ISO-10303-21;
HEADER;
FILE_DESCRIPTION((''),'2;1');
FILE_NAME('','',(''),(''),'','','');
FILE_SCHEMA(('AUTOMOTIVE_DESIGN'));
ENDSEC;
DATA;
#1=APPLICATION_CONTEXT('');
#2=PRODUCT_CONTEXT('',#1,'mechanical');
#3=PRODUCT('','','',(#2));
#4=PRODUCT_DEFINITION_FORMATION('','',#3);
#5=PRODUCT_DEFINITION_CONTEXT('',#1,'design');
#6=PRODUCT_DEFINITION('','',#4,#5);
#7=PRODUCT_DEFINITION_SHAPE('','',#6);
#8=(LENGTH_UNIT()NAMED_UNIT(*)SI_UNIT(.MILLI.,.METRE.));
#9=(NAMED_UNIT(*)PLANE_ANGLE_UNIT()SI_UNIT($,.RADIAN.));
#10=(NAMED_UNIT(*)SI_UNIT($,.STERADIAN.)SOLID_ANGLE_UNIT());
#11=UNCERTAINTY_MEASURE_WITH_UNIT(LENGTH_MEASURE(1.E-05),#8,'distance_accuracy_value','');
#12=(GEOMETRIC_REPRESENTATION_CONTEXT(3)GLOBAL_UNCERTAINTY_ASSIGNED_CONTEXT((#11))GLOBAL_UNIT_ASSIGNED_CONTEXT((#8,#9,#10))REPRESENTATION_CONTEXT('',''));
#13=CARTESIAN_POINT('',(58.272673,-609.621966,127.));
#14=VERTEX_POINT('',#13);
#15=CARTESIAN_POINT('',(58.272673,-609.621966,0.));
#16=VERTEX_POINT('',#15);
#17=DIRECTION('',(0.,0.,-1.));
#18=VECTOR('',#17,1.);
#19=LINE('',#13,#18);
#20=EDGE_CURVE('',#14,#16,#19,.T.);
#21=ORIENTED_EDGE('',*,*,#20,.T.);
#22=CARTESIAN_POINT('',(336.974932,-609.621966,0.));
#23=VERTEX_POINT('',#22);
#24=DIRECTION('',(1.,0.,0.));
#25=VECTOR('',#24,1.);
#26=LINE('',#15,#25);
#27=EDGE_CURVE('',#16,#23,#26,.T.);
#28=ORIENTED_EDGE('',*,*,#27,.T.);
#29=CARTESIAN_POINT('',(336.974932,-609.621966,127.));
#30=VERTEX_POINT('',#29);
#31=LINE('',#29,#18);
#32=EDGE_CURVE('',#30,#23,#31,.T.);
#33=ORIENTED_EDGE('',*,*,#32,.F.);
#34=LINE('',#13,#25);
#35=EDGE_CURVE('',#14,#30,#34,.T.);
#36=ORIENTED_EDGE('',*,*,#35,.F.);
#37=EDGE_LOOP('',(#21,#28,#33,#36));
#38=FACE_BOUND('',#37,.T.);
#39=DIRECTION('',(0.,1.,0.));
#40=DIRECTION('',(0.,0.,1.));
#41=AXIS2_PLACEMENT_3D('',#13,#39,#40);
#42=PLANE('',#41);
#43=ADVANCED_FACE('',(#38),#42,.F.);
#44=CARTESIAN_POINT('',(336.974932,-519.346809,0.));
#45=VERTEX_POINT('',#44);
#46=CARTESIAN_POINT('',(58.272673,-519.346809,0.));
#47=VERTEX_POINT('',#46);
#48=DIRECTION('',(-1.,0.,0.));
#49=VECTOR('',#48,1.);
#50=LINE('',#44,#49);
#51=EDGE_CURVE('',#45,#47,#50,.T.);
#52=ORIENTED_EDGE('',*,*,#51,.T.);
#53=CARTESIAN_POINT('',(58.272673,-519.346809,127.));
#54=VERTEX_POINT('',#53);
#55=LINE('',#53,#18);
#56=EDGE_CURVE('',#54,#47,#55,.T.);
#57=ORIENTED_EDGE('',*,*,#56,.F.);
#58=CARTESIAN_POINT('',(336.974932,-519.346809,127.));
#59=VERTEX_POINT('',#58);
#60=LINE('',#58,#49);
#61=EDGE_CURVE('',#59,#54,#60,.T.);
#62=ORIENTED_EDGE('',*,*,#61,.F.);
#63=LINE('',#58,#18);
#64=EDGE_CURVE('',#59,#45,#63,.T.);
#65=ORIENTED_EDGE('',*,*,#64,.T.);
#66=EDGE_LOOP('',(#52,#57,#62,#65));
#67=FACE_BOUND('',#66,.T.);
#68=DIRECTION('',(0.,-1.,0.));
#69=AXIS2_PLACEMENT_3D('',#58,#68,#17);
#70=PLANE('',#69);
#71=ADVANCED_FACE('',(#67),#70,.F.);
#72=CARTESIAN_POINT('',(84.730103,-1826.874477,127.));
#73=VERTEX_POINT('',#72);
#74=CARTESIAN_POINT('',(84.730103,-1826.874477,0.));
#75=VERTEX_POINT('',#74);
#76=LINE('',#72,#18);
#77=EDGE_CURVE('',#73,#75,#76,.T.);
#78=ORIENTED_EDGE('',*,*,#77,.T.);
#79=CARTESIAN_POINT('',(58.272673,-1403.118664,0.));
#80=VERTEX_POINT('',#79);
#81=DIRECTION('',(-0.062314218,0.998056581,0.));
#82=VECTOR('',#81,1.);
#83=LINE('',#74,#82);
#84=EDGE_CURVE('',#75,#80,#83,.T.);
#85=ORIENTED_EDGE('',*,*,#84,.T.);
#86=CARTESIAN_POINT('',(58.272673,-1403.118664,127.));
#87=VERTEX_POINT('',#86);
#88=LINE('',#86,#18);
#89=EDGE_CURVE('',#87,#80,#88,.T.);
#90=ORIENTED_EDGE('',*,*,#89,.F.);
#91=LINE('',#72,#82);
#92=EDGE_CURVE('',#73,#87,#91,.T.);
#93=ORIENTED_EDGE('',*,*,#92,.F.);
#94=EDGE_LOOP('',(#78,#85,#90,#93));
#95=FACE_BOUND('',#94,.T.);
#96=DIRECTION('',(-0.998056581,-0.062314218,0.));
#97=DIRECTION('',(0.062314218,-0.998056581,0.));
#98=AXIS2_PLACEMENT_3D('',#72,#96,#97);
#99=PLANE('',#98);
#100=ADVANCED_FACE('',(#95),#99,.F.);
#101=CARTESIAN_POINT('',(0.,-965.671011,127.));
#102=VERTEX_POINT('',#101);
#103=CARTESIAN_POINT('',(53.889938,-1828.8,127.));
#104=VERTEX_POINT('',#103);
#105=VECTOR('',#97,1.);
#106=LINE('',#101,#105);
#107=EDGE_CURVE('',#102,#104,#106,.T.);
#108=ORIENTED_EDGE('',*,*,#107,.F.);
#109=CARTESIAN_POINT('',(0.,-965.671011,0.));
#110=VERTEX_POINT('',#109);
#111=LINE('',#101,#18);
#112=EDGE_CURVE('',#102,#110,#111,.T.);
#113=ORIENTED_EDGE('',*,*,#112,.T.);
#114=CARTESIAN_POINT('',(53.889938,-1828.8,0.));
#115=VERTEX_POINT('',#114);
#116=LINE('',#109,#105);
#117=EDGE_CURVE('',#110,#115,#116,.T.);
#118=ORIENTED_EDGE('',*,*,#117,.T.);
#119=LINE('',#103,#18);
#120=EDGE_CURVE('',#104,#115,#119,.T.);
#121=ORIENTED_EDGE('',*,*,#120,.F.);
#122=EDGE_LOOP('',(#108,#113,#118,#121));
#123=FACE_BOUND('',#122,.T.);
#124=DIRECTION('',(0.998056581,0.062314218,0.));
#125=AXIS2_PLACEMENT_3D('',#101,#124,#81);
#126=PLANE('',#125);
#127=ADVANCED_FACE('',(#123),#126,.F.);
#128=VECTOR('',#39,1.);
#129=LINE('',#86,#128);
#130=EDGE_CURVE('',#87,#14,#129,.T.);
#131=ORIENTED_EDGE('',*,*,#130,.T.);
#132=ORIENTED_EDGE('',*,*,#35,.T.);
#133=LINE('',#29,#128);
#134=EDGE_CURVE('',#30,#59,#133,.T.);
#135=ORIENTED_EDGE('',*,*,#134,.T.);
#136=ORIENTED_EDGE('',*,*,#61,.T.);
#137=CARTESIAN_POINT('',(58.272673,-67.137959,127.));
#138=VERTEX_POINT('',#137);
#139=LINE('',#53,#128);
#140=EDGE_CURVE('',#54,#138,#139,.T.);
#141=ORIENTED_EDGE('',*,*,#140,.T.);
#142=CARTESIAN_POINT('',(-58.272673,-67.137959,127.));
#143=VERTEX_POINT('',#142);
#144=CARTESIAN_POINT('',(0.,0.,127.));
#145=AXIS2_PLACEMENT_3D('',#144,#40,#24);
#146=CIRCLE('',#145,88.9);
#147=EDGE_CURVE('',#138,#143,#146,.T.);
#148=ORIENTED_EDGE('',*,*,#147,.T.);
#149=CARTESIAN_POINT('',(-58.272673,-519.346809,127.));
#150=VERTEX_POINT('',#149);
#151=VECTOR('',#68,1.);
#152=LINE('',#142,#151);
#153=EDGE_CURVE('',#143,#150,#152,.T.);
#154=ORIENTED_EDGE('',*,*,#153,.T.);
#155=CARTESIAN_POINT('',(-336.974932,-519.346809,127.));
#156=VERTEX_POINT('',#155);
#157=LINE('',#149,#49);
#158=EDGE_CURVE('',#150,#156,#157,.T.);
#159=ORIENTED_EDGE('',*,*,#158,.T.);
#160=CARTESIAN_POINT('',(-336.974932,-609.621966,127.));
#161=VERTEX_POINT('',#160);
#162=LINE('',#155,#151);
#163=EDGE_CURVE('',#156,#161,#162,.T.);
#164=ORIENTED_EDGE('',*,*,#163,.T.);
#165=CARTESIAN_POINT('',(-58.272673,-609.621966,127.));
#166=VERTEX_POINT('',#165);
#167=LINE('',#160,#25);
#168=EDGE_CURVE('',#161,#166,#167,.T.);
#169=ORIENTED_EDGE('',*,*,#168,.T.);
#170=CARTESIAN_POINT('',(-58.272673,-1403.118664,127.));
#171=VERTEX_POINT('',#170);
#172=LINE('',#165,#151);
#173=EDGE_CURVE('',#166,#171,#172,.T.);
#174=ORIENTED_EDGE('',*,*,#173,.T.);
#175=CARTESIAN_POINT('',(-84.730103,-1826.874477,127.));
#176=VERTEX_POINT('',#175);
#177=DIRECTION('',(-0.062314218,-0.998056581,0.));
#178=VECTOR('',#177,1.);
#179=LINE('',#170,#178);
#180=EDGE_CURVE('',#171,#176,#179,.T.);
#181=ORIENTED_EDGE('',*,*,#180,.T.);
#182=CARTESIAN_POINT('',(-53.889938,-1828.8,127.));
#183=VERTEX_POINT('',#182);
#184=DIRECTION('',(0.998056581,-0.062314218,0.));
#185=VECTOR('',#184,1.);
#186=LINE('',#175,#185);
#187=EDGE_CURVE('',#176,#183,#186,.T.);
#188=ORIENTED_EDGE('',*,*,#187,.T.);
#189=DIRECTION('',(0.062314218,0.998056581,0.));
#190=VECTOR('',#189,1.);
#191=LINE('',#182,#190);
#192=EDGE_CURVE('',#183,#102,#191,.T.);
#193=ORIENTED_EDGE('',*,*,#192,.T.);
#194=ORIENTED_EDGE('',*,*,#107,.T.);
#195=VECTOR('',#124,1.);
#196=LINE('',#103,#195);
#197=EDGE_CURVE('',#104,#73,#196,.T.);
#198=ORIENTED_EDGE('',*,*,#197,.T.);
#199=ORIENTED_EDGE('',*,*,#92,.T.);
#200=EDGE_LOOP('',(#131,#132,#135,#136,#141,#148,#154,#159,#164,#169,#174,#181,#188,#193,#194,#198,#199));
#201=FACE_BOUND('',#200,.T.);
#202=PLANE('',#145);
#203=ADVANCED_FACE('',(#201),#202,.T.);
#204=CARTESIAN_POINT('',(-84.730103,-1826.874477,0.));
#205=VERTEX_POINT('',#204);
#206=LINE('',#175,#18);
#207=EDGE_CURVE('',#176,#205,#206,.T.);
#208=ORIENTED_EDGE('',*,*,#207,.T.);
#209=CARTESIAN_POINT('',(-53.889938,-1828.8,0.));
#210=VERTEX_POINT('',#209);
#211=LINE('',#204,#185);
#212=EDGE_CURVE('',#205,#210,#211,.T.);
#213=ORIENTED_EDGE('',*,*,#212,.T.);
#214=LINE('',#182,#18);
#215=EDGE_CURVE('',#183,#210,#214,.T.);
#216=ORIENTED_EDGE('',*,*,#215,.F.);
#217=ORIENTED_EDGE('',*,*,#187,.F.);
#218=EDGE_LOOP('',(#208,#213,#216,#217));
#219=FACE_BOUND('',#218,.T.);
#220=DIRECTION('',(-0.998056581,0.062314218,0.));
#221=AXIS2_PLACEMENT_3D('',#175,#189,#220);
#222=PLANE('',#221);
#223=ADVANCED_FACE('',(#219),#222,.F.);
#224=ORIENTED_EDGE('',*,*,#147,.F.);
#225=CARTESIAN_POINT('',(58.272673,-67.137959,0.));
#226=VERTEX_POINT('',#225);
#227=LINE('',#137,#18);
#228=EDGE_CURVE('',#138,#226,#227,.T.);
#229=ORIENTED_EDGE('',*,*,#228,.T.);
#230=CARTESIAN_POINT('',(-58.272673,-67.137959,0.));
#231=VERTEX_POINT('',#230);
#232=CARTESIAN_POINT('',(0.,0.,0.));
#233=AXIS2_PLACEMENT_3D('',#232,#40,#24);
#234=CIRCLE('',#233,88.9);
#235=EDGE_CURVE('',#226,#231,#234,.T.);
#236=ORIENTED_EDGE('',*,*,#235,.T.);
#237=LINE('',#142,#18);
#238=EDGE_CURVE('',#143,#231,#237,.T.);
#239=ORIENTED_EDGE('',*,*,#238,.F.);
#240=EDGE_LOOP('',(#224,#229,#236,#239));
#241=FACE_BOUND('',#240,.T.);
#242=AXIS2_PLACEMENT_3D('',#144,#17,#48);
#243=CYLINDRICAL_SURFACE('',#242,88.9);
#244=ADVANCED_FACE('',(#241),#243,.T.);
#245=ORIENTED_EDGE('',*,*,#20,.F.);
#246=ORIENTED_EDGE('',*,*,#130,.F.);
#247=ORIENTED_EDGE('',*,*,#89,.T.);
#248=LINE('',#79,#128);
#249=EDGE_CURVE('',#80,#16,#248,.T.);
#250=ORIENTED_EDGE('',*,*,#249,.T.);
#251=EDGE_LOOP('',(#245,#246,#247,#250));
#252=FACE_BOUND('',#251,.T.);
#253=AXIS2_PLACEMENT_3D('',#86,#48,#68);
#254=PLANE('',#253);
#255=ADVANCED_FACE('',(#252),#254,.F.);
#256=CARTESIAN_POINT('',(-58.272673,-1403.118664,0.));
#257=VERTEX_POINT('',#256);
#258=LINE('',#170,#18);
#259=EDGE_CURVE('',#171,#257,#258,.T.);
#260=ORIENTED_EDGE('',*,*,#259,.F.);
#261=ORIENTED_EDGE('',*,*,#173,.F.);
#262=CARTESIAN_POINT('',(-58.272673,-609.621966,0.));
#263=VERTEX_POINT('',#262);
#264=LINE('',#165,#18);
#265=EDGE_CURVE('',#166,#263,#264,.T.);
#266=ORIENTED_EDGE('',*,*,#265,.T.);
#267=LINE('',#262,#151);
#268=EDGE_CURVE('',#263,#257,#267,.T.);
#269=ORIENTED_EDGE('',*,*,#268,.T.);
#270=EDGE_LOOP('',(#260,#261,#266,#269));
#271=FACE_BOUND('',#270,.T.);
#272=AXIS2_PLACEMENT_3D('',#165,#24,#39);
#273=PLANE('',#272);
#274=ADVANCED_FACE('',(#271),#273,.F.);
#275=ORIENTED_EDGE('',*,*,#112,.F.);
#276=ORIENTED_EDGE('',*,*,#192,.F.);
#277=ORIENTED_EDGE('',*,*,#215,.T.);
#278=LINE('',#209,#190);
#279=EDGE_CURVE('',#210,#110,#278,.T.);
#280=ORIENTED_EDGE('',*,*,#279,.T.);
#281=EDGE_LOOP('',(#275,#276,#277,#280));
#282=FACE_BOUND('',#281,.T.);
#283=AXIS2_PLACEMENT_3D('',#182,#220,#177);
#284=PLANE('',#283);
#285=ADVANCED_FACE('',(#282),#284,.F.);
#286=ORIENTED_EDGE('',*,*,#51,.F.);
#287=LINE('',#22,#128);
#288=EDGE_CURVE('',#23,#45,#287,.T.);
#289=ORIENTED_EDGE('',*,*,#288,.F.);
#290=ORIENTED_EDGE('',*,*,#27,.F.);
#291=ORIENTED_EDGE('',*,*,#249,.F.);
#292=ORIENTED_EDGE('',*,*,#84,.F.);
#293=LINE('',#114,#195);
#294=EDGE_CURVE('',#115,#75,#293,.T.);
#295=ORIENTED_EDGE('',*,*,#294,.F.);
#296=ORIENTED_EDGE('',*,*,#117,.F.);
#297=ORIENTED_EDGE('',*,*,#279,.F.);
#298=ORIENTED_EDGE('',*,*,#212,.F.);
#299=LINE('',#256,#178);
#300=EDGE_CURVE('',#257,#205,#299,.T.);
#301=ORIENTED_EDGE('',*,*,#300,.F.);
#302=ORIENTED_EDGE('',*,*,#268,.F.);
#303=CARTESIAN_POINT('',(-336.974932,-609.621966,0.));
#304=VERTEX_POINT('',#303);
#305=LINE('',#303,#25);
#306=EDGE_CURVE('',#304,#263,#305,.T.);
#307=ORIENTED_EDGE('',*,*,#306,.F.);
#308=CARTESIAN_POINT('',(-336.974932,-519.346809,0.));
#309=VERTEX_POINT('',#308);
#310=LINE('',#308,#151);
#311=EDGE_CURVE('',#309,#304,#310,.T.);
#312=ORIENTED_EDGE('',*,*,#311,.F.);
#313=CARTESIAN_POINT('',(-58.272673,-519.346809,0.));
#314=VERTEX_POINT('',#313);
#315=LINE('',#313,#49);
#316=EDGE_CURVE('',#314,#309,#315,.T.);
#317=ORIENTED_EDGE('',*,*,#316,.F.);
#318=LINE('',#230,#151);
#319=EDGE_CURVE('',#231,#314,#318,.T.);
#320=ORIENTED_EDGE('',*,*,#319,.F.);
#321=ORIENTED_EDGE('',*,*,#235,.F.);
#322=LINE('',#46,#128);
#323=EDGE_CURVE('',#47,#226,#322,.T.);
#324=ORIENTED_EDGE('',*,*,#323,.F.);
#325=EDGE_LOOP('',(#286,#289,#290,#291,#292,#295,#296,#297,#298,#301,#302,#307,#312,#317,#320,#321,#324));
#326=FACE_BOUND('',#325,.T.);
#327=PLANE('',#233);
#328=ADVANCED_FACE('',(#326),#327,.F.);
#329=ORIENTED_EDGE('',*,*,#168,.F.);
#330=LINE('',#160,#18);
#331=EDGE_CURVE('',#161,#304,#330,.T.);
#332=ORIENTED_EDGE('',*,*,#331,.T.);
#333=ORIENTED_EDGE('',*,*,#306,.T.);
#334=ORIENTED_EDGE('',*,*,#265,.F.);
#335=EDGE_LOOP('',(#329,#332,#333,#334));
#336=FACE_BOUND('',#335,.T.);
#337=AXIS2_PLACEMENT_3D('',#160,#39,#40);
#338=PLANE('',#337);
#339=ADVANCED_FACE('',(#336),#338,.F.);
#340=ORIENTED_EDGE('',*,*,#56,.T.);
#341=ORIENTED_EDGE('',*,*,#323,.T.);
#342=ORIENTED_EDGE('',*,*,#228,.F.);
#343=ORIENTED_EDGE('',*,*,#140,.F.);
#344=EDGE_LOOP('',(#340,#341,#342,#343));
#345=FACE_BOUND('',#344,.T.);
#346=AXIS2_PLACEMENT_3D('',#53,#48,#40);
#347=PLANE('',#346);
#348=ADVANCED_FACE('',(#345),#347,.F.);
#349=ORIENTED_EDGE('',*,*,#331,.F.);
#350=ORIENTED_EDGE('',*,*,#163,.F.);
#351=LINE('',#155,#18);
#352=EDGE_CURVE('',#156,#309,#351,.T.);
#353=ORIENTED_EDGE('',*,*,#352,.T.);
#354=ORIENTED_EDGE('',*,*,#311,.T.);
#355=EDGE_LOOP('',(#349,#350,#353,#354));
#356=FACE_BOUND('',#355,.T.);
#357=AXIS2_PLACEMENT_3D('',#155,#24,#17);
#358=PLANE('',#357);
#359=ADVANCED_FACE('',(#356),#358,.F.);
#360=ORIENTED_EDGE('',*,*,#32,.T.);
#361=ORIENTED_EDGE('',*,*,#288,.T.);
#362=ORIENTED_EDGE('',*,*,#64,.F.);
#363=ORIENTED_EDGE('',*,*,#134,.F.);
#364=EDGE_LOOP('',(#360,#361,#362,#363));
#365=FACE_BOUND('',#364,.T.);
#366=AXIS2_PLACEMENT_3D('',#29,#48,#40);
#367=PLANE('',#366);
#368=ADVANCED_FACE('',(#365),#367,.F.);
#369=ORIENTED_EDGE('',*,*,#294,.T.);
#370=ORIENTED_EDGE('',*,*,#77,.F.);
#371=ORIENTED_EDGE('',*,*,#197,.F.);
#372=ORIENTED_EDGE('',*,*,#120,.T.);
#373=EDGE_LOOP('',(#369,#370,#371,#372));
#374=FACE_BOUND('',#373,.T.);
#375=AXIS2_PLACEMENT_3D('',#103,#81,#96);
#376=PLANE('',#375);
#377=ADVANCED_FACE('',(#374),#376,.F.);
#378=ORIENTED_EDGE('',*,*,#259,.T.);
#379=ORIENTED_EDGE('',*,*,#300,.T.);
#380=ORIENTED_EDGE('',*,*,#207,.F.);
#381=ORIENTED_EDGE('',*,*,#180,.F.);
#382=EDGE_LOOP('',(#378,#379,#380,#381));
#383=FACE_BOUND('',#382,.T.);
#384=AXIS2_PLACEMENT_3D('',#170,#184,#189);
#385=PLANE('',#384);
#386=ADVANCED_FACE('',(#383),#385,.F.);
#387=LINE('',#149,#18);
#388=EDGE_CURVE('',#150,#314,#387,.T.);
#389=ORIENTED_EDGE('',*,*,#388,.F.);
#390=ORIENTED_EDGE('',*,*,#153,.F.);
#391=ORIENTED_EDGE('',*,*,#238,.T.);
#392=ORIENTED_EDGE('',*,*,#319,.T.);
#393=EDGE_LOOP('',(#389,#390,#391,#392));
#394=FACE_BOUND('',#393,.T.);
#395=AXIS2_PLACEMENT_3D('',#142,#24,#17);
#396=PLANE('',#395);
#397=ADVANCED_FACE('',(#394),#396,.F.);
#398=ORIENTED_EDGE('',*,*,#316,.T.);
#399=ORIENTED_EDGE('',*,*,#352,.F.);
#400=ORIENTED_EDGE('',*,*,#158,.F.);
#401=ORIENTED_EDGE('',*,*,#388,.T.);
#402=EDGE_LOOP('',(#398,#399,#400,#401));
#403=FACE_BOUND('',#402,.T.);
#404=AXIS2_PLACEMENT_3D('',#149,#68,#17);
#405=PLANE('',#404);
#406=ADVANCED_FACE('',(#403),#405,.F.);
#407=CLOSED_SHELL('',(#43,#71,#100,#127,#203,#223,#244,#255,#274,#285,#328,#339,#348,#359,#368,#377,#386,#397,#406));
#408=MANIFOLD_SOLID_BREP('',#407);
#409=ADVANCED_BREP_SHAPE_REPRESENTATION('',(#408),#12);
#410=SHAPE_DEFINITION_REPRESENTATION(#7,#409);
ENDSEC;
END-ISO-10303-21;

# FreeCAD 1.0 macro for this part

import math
import FreeCAD as App
import Part
import Sketcher
from FreeCAD import Vector
Q = App.Units.Quantity

doc = App.newDocument("Part")
body = doc.addObject("PartDesign::Body", "Body")

# Sketch on XY plane
sketch1 = body.newObject("Sketcher::SketchObject", "Sketch")
sketch1.AttachmentSupport = (doc.getObject("XY_Plane"), [""])
sketch1.MapMode = "FlatFace"
sketch1.addGeometry([
    Part.LineSegment(Vector(-58.272673, -67.137959, 0), Vector(-58.272673, -519.346809, 0)),  # 0
    Part.LineSegment(Vector(-58.272673, -519.346809, 0), Vector(-336.974932, -519.346809, 0)),  # 1
    Part.LineSegment(Vector(-336.974932, -519.346809, 0), Vector(-336.974932, -609.621966, 0)),  # 2
    Part.LineSegment(Vector(-336.974932, -609.621966, 0), Vector(-58.272673, -609.621966, 0)),  # 3
    Part.LineSegment(Vector(-58.272673, -609.621966, 0), Vector(-58.272673, -1403.118664, 0)),  # 4
    Part.LineSegment(Vector(-58.272673, -1403.118664, 0), Vector(-84.730103, -1826.874477, 0)),  # 5
    Part.LineSegment(Vector(-84.730103, -1826.874477, 0), Vector(-53.889938, -1828.8, 0)),  # 6
    Part.LineSegment(Vector(-53.889938, -1828.8, 0), Vector(0, -965.671011, 0)),  # 7
    Part.LineSegment(Vector(0, -965.671011, 0), Vector(53.889938, -1828.8, 0)),  # 8
    Part.LineSegment(Vector(53.889938, -1828.8, 0), Vector(84.730103, -1826.874477, 0)),  # 9
    Part.LineSegment(Vector(84.730103, -1826.874477, 0), Vector(58.272673, -1403.118664, 0)),  # 10
    Part.LineSegment(Vector(58.272673, -1403.118664, 0), Vector(58.272673, -609.621966, 0)),  # 11
    Part.LineSegment(Vector(58.272673, -609.621966, 0), Vector(336.974932, -609.621966, 0)),  # 12
    Part.LineSegment(Vector(336.974932, -609.621966, 0), Vector(336.974932, -519.346809, 0)),  # 13
    Part.LineSegment(Vector(336.974932, -519.346809, 0), Vector(58.272673, -519.346809, 0)),  # 14
    Part.LineSegment(Vector(58.272673, -519.346809, 0), Vector(58.272673, -67.137959, 0)),  # 15
    Part.ArcOfCircle(Part.Circle(Vector(0, 0, 0), Vector(0, 0, 1), 88.9), math.radians(-49.043516), math.radians(229.043516)),  # 16
], False)
sketch1.addConstraint([
    Sketcher.Constraint("Coincident", 0, 2, 1, 1),
    Sketcher.Constraint("Coincident", 1, 2, 2, 1),
    Sketcher.Constraint("Coincident", 2, 2, 3, 1),
    Sketcher.Constraint("Coincident", 3, 2, 4, 1),
    Sketcher.Constraint("Coincident", 4, 2, 5, 1),
    Sketcher.Constraint("Coincident", 5, 2, 6, 1),
    Sketcher.Constraint("Coincident", 6, 2, 7, 1),
    Sketcher.Constraint("Coincident", 7, 2, 8, 1),
    Sketcher.Constraint("Coincident", 8, 2, 9, 1),
    Sketcher.Constraint("Coincident", 9, 2, 10, 1),
    Sketcher.Constraint("Coincident", 10, 2, 11, 1),
    Sketcher.Constraint("Coincident", 11, 2, 12, 1),
    Sketcher.Constraint("Coincident", 12, 2, 13, 1),
    Sketcher.Constraint("Coincident", 13, 2, 14, 1),
    Sketcher.Constraint("Coincident", 14, 2, 15, 1),
    Sketcher.Constraint("Coincident", 15, 2, 16, 1),
    Sketcher.Constraint("Coincident", 16, 2, 0, 1),
    Sketcher.Constraint("Vertical", 0),
    Sketcher.Constraint("Horizontal", 1),
    Sketcher.Constraint("Vertical", 2),
    Sketcher.Constraint("Horizontal", 3),
    Sketcher.Constraint("Vertical", 4),
    Sketcher.Constraint("Vertical", 11),
    Sketcher.Constraint("Horizontal", 12),
    Sketcher.Constraint("Vertical", 13),
    Sketcher.Constraint("Horizontal", 14),
    Sketcher.Constraint("Vertical", 15),
    Sketcher.Constraint("Coincident", 16, 3, -1, 1),
    Sketcher.Constraint("Symmetric", 6, 2, 8, 2, -2),
    Sketcher.Constraint("Symmetric", 5, 2, 9, 2, -2),
    Sketcher.Constraint("Symmetric", 4, 2, 10, 2, -2),
    Sketcher.Constraint("Symmetric", 2, 2, 12, 2, -2),
    Sketcher.Constraint("Symmetric", 0, 2, 14, 2, -2),
    Sketcher.Constraint("PointOnObject", 7, 2, -2),
    Sketcher.Constraint("Perpendicular", 5, 6),
    Sketcher.Constraint("Perpendicular", 6, 7),
    Sketcher.Constraint("Vertical", 0, 2, 3, 2),
    Sketcher.Constraint("Radius", 16, Q("3.5 in")),
    Sketcher.Constraint("DistanceY", 6, 2, -1, 1, Q("72 in")),
    Sketcher.Constraint("DistanceY", 4, 2, 4, 1, Q("793.496698 mm")),
    Sketcher.Constraint("DistanceX", 1, 2, 1, 1, Q("278.702259 mm")),
    Sketcher.Constraint("DistanceY", 0, 2, 0, 1, Q("452.20885 mm")),
    Sketcher.Constraint("Distance", 5, Q("424.580952 mm")),
    Sketcher.Constraint("DistanceY", 2, 2, 2, 1, Q("90.275157 mm")),
    Sketcher.Constraint("DistanceY", 0, 2, -1, 1, Q("519.346809 mm")),
    Sketcher.Constraint("DistanceX", 6, 2, -1, 1, Q("53.889938 mm")),
])
pad1 = body.newObject("PartDesign::Pad", "Pad")
pad1.Profile = sketch1
pad1.Length = Q("5 in")

doc.recompute()
